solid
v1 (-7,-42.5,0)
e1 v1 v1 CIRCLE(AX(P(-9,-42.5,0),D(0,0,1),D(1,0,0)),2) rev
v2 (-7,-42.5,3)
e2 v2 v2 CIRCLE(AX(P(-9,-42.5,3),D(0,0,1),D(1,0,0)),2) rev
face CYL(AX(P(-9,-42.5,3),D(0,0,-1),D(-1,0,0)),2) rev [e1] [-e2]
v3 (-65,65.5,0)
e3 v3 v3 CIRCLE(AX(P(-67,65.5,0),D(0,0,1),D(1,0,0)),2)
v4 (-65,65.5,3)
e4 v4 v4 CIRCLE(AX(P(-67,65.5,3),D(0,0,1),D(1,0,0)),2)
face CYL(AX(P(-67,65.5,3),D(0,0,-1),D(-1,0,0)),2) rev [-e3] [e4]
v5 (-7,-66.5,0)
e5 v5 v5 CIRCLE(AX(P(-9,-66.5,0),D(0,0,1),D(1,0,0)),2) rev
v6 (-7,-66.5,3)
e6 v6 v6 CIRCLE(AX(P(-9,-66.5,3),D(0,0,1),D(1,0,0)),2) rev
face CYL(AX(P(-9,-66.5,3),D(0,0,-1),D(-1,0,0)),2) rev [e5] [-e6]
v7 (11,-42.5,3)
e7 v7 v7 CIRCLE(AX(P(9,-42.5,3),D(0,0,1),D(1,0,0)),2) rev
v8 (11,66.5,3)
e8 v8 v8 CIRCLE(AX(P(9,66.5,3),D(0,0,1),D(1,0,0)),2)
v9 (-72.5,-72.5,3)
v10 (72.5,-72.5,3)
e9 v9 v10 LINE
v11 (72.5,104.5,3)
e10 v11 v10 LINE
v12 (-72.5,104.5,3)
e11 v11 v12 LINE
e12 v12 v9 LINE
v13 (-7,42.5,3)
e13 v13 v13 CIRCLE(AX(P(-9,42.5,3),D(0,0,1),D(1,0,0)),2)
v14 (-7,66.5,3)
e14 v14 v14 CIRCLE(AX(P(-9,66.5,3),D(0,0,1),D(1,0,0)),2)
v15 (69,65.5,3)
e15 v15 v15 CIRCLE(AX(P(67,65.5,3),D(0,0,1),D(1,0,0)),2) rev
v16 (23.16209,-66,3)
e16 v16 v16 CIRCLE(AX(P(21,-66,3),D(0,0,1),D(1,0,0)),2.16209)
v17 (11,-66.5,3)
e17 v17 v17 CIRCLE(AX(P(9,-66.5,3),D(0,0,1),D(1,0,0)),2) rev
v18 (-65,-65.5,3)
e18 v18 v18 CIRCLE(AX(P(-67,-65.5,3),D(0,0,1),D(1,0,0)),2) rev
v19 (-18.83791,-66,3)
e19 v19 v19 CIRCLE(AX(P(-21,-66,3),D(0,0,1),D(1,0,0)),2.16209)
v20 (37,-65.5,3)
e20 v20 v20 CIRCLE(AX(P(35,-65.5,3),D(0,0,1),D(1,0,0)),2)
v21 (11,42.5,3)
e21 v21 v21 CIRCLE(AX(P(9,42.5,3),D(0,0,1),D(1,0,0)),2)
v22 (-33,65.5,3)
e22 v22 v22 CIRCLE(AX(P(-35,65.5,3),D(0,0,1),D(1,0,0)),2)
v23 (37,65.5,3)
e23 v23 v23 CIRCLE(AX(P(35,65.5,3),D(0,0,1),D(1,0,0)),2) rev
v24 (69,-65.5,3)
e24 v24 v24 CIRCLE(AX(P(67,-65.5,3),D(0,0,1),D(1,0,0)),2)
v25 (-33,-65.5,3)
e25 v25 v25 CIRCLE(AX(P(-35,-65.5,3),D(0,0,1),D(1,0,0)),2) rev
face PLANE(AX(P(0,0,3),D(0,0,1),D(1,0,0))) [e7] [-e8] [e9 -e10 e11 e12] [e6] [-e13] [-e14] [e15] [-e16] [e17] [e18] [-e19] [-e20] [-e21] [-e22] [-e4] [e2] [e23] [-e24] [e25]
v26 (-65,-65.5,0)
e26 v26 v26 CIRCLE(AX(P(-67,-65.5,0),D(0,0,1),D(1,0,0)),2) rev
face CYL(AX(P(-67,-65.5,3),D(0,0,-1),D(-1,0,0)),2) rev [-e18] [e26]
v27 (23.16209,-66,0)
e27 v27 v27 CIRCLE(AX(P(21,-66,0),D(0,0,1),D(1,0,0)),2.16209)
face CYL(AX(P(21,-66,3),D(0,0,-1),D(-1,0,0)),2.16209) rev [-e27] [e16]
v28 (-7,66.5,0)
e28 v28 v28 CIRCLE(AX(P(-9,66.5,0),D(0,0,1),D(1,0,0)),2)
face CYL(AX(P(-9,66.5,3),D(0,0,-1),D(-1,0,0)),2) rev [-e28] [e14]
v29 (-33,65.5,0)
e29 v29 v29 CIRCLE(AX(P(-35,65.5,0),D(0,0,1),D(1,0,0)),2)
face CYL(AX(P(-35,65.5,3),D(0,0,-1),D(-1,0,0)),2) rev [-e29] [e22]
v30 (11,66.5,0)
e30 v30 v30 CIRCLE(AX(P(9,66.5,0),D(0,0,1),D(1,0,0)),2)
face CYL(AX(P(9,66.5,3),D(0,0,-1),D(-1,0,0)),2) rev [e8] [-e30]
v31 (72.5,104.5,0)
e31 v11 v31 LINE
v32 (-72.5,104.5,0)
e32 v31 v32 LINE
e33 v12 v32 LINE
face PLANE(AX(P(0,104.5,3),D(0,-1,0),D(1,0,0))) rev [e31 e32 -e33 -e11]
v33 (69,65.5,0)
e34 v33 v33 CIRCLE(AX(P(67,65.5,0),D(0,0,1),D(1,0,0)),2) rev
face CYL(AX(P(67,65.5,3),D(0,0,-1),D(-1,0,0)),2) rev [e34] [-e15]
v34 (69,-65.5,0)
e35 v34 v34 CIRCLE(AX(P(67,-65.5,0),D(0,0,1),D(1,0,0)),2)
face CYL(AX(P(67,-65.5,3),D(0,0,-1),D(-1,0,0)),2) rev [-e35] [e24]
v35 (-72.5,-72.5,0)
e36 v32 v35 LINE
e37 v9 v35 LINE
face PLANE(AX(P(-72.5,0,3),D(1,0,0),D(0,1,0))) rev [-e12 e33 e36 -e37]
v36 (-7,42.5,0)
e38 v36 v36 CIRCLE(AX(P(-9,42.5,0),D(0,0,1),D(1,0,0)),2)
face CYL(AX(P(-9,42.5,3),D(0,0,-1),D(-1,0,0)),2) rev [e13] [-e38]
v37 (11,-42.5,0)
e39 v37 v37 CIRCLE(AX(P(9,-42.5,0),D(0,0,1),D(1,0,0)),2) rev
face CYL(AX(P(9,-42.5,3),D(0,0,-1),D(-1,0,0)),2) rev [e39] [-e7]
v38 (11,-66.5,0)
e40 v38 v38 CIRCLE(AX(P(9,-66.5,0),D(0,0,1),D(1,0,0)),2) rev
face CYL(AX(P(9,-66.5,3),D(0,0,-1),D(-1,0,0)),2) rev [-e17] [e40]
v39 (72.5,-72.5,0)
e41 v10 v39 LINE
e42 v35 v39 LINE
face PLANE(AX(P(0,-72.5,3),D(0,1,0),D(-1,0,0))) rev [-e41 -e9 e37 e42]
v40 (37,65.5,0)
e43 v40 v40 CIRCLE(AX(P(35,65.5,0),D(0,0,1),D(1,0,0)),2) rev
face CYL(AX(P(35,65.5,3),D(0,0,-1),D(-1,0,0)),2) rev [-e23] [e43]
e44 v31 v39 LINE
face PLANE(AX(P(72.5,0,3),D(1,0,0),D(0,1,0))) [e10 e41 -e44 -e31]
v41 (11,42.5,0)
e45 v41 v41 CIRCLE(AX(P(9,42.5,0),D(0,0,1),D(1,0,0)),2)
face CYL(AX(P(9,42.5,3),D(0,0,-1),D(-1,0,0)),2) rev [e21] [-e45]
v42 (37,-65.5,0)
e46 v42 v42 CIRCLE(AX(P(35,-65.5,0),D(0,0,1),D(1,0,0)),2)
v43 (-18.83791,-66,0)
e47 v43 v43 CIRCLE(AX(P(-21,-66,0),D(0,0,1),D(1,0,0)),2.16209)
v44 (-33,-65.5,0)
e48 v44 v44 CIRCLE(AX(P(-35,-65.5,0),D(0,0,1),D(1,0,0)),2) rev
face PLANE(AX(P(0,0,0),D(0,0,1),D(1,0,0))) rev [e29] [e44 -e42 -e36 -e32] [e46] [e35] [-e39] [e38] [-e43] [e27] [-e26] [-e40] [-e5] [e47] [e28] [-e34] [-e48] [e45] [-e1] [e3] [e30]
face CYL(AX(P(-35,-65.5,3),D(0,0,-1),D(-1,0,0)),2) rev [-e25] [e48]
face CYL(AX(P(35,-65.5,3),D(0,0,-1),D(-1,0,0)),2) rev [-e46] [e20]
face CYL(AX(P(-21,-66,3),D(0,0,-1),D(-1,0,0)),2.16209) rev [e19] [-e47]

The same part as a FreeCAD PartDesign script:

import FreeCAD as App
import Part
import Sketcher
Q = App.Units.Quantity

doc = App.newDocument("Part")
body = doc.addObject("PartDesign::Body", "Body")

# Sketch on XY plane
sketch1 = body.newObject("Sketcher::SketchObject", "Sketch")
sketch1.AttachmentSupport = (doc.getObject("XY_Plane"), [""])
sketch1.MapMode = "FlatFace"
sketch1.addGeometry([
    Part.LineSegment(App.Vector(72.5, 104.5, 0), App.Vector(-72.5, 104.5, 0)),  # 0
    Part.LineSegment(App.Vector(-72.5, 104.5, 0), App.Vector(-72.5, -72.5, 0)),  # 1
    Part.LineSegment(App.Vector(-72.5, -72.5, 0), App.Vector(72.5, -72.5, 0)),  # 2
    Part.LineSegment(App.Vector(72.5, -72.5, 0), App.Vector(72.5, 104.5, 0)),  # 3
    Part.Circle(App.Vector(-67, -65.5, 0), App.Vector(0, 0, 1), 2),  # 4
    Part.Circle(App.Vector(-35, -65.5, 0), App.Vector(0, 0, 1), 2),  # 5
    Part.Circle(App.Vector(-21, -66, 0), App.Vector(0, 0, 1), 2.16209),  # 6
    Part.Circle(App.Vector(-9, -66.5, 0), App.Vector(0, 0, 1), 2),  # 7
    Part.Circle(App.Vector(-9, -42.5, 0), App.Vector(0, 0, 1), 2),  # 8
    Part.Circle(App.Vector(9, -66.5, 0), App.Vector(0, 0, 1), 2),  # 9
    Part.Circle(App.Vector(21, -66, 0), App.Vector(0, 0, 1), 2.16209),  # 10
    Part.Circle(App.Vector(9, -42.5, 0), App.Vector(0, 0, 1), 2),  # 11
    Part.Circle(App.Vector(35, -65.5, 0), App.Vector(0, 0, 1), 2),  # 12
    Part.Circle(App.Vector(67, -65.5, 0), App.Vector(0, 0, 1), 2),  # 13
    Part.Circle(App.Vector(-67, 65.5, 0), App.Vector(0, 0, 1), 2),  # 14
    Part.Circle(App.Vector(-35, 65.5, 0), App.Vector(0, 0, 1), 2),  # 15
    Part.Circle(App.Vector(-9, 42.5, 0), App.Vector(0, 0, 1), 2),  # 16
    Part.Circle(App.Vector(-9, 66.5, 0), App.Vector(0, 0, 1), 2),  # 17
    Part.Circle(App.Vector(9, 42.5, 0), App.Vector(0, 0, 1), 2),  # 18
    Part.Circle(App.Vector(9, 66.5, 0), App.Vector(0, 0, 1), 2),  # 19
    Part.Circle(App.Vector(35, 65.5, 0), App.Vector(0, 0, 1), 2),  # 20
    Part.Circle(App.Vector(67, 65.5, 0), App.Vector(0, 0, 1), 2),  # 21
], False)
sketch1.addConstraint([
    Sketcher.Constraint("Coincident", 0, 2, 1, 1),
    Sketcher.Constraint("Coincident", 1, 2, 2, 1),
    Sketcher.Constraint("Coincident", 2, 2, 3, 1),
    Sketcher.Constraint("Coincident", 3, 2, 0, 1),
    Sketcher.Constraint("Horizontal", 0),
    Sketcher.Constraint("Vertical", 1),
    Sketcher.Constraint("Horizontal", 2),
    Sketcher.Constraint("Vertical", 3),
    Sketcher.Constraint("Equal", 4, 5),
    Sketcher.Constraint("Equal", 5, 7),
    Sketcher.Constraint("Equal", 7, 8),
    Sketcher.Constraint("Equal", 8, 9),
    Sketcher.Constraint("Equal", 6, 10),
    Sketcher.Constraint("Equal", 9, 11),
    Sketcher.Constraint("Equal", 11, 12),
    Sketcher.Constraint("Equal", 12, 13),
    Sketcher.Constraint("Equal", 13, 14),
    Sketcher.Constraint("Equal", 14, 15),
    Sketcher.Constraint("Equal", 15, 16),
    Sketcher.Constraint("Equal", 16, 17),
    Sketcher.Constraint("Equal", 17, 18),
    Sketcher.Constraint("Equal", 18, 19),
    Sketcher.Constraint("Equal", 19, 20),
    Sketcher.Constraint("Equal", 20, 21),
    Sketcher.Constraint("Symmetric", 13, 3, 14, 3, -1, 1),
    Sketcher.Constraint("Symmetric", 12, 3, 15, 3, -1, 1),
    Sketcher.Constraint("Symmetric", 11, 3, 16, 3, -1, 1),
    Sketcher.Constraint("Symmetric", 9, 3, 17, 3, -1, 1),
    Sketcher.Constraint("Symmetric", 8, 3, 18, 3, -1, 1),
    Sketcher.Constraint("Symmetric", 7, 3, 19, 3, -1, 1),
    Sketcher.Constraint("Symmetric", 5, 3, 20, 3, -1, 1),
    Sketcher.Constraint("Symmetric", 4, 3, 21, 3, -1, 1),
    Sketcher.Constraint("Symmetric", 7, 3, 9, 3, -2),
    Sketcher.Constraint("Symmetric", 6, 3, 10, 3, -2),
    Sketcher.Constraint("Symmetric", 8, 3, 11, 3, -2),
    Sketcher.Constraint("Symmetric", 5, 3, 12, 3, -2),
    Sketcher.Constraint("Symmetric", 4, 3, 13, 3, -2),
    Sketcher.Constraint("Horizontal", 4, 3, 5, 3),
    Sketcher.Constraint("Vertical", 7, 3, 8, 3),
    Sketcher.Constraint("Diameter", 4, Q("4 mm")),
    Sketcher.Constraint("DistanceX", 0, 2, 0, 1, Q("145 mm")),
    Sketcher.Constraint("DistanceY", 1, 2, 1, 1, Q("177 mm")),
    Sketcher.Constraint("DistanceX", 4, 3, -1, 1, Q("67 mm")),
    Sketcher.Constraint("DistanceX", 5, 3, -1, 1, Q("35 mm")),
    Sketcher.Constraint("DistanceX", 6, 3, -1, 1, Q("21 mm")),
    Sketcher.Constraint("DistanceY", 6, 3, -1, 1, Q("66 mm")),
    Sketcher.Constraint("DistanceX", 7, 3, -1, 1, Q("9 mm")),
    Sketcher.Constraint("DistanceY", 7, 3, 5, 3, Q("1 mm")),
    Sketcher.Constraint("DistanceY", 7, 3, 8, 3, Q("24 mm")),
    Sketcher.Constraint("DistanceY", 8, 3, 14, 3, Q("108 mm")),
    Sketcher.Constraint("DistanceY", 14, 3, 0, 2, Q("39 mm")),
    Sketcher.Constraint("DistanceX", 0, 2, -1, 1, Q("72.5 mm")),
    Sketcher.Constraint("Diameter", 6, Q("4.324181 mm")),
])
pad1 = body.newObject("PartDesign::Pad", "Pad")
pad1.Profile = sketch1
pad1.Length = 3

doc.recompute()
